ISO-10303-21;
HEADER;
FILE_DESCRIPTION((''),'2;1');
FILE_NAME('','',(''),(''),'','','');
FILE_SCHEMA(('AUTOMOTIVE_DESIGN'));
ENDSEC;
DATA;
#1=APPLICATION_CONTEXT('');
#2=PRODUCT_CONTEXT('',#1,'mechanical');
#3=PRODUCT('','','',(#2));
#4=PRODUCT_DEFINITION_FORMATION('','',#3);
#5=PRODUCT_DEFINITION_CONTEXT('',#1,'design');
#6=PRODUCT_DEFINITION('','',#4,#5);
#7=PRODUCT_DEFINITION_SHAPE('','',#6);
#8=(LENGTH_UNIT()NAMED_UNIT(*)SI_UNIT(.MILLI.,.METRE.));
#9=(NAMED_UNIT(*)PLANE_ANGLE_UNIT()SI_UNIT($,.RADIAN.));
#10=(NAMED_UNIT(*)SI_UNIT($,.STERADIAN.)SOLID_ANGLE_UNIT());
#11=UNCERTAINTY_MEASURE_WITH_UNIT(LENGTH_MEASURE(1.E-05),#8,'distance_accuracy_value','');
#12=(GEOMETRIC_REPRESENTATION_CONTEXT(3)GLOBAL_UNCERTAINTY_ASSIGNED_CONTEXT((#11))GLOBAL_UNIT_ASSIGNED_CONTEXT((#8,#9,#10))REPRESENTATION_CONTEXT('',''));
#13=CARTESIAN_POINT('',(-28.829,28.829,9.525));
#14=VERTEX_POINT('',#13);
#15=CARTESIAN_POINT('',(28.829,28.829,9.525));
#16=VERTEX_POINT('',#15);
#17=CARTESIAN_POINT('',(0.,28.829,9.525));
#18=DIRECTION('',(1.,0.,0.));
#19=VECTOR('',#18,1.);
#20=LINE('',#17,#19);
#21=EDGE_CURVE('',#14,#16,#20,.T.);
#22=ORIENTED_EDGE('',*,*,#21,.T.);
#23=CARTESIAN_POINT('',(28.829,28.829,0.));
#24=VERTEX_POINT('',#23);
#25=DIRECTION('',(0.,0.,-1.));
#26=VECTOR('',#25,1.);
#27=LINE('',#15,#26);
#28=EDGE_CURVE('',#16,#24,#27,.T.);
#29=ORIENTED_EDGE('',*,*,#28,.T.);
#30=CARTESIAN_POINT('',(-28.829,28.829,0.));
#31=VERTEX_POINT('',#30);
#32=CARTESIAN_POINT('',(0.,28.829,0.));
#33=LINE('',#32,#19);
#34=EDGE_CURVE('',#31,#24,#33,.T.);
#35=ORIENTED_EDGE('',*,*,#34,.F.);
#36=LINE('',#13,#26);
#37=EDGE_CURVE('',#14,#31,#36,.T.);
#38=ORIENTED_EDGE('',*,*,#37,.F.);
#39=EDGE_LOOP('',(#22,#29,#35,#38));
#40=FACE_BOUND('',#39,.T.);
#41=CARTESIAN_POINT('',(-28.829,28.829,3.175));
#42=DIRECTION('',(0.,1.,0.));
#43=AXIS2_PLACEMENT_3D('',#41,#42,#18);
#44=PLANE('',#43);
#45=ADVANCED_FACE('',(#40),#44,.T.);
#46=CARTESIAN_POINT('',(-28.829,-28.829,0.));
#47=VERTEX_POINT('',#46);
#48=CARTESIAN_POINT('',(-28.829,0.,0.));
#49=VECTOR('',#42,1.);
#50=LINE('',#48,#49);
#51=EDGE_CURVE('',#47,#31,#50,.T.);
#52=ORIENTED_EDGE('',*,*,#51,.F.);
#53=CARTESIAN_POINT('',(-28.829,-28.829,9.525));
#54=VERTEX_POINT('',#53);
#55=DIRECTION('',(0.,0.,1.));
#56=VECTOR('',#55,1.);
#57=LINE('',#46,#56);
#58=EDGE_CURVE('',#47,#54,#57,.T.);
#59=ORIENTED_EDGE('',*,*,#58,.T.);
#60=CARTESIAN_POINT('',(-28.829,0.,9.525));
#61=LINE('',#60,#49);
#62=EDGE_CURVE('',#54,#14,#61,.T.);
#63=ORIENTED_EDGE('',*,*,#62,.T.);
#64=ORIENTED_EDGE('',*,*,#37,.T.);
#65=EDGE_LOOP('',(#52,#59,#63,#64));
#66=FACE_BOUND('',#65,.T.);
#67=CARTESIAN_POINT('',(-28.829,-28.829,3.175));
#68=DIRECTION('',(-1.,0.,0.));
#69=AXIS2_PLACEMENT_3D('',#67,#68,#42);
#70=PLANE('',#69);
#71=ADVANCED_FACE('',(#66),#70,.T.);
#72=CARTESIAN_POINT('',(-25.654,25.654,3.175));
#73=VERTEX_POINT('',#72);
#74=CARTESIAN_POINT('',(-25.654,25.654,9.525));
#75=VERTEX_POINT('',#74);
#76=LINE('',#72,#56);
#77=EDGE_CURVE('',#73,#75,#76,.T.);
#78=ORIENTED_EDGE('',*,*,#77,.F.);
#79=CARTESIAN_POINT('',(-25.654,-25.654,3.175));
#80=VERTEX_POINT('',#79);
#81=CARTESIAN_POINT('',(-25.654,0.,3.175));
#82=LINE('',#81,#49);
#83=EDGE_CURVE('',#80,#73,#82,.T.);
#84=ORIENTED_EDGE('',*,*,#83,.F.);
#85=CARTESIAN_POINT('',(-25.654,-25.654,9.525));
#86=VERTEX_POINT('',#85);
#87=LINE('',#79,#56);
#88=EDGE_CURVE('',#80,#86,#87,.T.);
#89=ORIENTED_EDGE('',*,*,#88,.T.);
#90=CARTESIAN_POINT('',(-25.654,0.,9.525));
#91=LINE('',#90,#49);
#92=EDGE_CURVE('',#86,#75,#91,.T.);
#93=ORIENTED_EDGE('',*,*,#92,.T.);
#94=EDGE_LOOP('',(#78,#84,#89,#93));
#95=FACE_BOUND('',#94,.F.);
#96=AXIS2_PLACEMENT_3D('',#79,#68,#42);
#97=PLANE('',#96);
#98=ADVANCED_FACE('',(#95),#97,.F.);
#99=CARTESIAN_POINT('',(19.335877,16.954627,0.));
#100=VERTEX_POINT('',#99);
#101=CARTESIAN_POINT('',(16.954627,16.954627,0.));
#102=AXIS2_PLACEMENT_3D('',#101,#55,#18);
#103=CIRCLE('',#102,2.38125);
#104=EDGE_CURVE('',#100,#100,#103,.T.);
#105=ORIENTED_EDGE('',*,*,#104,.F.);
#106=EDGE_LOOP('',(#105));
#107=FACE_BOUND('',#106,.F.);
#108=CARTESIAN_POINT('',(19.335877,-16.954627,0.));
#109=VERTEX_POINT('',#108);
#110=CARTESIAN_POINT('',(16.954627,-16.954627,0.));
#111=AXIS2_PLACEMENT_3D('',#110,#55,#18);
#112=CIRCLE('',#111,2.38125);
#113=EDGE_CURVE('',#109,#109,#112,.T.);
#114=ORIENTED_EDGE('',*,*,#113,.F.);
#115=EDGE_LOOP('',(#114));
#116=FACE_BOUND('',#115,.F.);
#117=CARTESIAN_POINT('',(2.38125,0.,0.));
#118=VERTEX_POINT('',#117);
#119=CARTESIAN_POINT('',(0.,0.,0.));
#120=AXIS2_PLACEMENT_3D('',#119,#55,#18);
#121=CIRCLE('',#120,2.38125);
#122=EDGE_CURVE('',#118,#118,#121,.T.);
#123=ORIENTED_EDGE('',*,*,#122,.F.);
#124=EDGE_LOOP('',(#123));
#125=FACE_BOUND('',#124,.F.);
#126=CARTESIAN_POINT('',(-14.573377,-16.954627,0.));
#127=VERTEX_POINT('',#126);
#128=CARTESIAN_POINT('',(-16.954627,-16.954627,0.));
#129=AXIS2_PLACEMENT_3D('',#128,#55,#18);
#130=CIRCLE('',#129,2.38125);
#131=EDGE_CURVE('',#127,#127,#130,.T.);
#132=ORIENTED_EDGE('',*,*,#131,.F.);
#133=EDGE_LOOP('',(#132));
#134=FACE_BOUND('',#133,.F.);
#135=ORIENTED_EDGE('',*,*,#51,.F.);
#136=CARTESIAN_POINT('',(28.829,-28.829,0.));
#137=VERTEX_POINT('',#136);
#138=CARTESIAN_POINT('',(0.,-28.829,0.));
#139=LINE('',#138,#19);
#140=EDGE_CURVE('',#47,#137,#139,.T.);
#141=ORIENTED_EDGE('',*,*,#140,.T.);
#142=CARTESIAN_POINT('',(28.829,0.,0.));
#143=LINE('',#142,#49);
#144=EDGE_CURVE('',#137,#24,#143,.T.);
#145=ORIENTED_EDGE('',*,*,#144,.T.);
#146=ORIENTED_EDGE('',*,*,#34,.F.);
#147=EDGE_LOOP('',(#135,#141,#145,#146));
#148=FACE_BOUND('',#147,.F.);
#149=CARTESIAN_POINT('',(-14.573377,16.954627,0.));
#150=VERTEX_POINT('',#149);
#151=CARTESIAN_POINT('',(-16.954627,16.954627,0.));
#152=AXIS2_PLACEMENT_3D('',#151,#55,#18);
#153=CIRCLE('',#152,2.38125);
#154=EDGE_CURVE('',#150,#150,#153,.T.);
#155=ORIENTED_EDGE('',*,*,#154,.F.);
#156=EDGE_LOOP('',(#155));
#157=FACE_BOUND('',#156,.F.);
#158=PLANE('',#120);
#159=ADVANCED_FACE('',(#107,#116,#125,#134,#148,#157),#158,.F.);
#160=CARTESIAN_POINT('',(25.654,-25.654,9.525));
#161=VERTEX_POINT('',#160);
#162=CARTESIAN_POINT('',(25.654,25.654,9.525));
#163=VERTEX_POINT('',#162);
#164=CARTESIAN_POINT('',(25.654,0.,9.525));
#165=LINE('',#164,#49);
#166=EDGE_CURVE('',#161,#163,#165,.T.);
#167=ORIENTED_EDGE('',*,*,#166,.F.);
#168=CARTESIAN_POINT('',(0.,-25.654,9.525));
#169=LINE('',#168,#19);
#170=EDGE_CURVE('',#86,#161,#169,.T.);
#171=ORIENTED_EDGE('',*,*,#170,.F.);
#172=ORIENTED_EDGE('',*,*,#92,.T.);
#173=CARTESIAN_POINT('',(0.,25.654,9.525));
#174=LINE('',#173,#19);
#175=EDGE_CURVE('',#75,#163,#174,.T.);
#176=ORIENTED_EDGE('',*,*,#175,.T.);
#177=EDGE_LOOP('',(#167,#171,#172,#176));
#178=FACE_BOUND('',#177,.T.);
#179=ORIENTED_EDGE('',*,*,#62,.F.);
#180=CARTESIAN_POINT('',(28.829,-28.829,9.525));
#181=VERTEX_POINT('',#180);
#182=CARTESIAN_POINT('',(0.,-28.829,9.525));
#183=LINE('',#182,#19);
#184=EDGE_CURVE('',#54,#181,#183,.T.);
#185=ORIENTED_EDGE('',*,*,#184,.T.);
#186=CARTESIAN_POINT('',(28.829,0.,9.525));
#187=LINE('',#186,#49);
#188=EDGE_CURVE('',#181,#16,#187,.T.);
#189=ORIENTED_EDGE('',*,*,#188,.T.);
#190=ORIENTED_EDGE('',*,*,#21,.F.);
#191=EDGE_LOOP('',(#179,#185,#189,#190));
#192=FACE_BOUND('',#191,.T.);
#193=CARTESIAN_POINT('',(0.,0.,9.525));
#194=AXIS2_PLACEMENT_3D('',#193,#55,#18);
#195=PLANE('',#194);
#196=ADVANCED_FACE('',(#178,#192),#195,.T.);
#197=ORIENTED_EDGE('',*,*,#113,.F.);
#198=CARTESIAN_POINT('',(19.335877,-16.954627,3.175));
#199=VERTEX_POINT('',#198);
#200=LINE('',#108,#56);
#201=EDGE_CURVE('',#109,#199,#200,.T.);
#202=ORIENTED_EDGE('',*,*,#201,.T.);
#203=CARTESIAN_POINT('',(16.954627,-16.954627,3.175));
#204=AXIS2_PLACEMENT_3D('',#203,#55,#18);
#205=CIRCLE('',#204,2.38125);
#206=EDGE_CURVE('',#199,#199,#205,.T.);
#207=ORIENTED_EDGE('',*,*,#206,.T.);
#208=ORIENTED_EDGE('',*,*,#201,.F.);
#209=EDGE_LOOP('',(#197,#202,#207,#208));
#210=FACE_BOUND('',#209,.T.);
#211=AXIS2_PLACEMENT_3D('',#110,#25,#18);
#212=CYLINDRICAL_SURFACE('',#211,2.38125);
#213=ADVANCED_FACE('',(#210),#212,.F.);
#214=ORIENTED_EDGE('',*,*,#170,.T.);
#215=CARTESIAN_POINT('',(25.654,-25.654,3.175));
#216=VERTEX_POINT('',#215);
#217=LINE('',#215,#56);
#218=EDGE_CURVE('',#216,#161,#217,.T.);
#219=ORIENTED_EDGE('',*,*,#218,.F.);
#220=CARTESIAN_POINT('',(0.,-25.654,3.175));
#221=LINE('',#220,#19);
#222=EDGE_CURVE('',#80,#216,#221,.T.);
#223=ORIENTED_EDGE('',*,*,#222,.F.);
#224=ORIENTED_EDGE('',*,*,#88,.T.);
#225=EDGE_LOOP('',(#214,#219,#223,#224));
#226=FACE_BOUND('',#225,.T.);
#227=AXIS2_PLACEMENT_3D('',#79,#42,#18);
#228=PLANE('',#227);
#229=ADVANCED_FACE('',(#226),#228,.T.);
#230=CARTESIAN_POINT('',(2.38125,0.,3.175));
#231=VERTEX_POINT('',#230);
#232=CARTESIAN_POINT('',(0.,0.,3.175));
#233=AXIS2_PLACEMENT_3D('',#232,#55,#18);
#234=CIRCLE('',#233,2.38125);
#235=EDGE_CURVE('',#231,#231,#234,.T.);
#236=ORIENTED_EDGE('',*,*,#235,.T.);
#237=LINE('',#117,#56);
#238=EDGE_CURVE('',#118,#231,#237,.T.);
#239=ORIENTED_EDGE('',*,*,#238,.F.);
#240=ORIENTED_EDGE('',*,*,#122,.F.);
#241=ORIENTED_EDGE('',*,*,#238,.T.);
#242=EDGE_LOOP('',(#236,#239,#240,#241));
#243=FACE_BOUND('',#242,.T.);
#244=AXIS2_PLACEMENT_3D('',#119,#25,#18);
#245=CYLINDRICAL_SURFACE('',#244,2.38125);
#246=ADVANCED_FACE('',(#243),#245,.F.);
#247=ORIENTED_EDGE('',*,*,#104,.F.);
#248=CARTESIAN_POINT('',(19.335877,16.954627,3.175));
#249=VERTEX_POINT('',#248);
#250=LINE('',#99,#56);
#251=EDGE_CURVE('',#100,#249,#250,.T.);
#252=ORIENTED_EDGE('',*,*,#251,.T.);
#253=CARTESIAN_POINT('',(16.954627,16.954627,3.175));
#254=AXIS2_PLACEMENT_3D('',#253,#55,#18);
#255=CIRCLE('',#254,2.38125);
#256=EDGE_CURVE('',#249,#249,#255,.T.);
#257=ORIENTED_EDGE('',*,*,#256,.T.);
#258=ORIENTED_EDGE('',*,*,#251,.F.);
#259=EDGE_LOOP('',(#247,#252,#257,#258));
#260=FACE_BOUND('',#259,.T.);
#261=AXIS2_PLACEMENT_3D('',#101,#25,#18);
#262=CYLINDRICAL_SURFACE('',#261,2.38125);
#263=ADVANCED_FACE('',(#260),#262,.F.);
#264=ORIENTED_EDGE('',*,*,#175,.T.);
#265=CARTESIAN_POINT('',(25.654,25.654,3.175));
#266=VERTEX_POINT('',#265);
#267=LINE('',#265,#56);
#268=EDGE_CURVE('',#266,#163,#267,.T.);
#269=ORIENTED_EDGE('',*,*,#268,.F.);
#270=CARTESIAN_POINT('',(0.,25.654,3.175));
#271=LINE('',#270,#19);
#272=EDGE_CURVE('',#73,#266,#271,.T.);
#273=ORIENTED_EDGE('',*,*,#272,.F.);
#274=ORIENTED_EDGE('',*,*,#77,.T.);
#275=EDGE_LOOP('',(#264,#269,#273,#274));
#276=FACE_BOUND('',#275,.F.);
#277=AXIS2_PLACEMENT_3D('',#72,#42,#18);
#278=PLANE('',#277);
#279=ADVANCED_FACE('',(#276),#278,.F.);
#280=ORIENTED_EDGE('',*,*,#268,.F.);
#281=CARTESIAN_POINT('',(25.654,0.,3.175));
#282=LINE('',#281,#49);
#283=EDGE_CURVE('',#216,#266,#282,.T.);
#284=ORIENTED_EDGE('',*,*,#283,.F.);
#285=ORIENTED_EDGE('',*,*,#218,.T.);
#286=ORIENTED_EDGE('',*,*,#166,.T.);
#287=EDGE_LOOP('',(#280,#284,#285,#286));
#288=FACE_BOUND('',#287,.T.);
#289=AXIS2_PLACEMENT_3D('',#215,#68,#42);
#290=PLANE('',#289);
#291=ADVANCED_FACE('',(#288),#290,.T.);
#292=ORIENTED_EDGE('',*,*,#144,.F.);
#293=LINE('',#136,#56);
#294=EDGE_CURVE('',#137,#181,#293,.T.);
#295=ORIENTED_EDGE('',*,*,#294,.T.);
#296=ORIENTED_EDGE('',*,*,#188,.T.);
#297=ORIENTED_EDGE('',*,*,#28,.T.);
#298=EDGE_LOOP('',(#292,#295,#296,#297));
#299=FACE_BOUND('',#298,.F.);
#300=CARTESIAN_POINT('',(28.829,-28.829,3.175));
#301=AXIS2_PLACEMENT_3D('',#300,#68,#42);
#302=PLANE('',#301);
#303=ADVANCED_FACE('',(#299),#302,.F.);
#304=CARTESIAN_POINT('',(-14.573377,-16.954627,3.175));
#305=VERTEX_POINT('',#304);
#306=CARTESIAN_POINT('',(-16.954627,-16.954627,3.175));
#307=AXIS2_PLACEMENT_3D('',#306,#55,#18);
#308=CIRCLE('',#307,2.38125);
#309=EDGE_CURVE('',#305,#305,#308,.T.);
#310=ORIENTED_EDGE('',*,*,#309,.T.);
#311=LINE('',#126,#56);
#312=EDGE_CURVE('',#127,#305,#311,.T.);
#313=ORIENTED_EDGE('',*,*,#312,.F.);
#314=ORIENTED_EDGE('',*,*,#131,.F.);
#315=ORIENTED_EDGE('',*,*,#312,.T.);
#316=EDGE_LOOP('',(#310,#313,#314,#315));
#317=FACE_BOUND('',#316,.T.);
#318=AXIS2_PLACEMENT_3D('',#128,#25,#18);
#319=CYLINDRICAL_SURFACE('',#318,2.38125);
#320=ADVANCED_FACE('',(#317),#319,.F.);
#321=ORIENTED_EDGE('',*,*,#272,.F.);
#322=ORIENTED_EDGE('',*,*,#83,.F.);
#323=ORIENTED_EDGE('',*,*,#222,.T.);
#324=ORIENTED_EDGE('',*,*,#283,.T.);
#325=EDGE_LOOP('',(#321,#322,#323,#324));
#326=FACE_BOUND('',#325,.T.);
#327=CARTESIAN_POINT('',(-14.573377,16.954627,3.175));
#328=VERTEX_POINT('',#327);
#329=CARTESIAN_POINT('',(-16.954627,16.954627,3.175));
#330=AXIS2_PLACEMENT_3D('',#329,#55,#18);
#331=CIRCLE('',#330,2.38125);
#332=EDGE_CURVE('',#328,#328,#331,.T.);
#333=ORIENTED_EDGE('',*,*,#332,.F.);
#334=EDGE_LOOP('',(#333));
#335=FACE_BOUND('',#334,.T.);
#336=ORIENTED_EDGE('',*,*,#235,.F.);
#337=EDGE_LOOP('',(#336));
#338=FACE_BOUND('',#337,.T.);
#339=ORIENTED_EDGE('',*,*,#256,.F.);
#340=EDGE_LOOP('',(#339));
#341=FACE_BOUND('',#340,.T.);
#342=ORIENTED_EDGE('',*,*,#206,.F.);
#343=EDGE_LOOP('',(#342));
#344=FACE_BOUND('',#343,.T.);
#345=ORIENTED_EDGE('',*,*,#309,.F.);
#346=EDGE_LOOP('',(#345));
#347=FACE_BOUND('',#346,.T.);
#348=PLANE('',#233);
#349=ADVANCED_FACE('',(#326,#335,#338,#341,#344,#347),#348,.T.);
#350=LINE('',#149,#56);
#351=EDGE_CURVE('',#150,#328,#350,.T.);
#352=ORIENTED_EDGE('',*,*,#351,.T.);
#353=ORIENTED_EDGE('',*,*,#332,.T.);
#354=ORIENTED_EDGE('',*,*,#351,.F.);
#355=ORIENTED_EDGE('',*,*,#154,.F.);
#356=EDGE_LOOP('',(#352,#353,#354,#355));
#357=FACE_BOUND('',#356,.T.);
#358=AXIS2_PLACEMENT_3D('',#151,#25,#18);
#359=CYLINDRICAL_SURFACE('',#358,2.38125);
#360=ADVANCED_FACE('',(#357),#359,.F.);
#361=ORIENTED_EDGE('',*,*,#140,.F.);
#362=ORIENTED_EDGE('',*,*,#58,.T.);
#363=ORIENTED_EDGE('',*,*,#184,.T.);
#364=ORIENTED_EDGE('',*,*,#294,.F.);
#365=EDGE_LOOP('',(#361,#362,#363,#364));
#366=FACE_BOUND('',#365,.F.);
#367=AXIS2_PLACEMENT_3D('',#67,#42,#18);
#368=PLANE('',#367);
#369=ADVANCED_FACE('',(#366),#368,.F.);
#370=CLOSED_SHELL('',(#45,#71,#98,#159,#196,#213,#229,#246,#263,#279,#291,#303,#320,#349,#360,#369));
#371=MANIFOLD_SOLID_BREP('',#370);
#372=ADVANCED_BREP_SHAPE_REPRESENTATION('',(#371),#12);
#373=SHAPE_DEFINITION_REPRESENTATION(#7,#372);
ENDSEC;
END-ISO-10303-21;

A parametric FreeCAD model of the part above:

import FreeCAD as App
import Part
import Sketcher
Q = App.Units.Quantity


def add_polygon(sketch, points):
    """Adds a closed chain of lines whose ends are joined by coincident constraints."""
    first, n = sketch.GeometryCount, len(points)
    for a, b in zip(points, points[1:] + points[:1]):
        sketch.addGeometry(Part.LineSegment(App.Vector(*a, 0), App.Vector(*b, 0)), False)
    for i in range(n):
        sketch.addConstraint(Sketcher.Constraint("Coincident", first + i, 2, first + (i + 1) % n, 1))

doc = App.newDocument("Part")
body = doc.addObject("PartDesign::Body", "Body")

# Sketch on XY plane
sketch1 = doc.addObject("Sketcher::SketchObject", "Sketch")
body.addObject(sketch1)
sketch1.AttachmentSupport = (doc.XY_Plane, [""])
sketch1.MapMode = "FlatFace"
add_polygon(sketch1, [(-28.829, 28.829), (-28.829, -28.829), (28.829, -28.829), (28.829, 28.829)])  # lines 0-3
sketch1.addGeometry(Part.Circle(App.Vector(-16.954627, -16.954627, 0), App.Vector(0, 0, 1), 2.38125), False)  # 4
sketch1.addGeometry(Part.Circle(App.Vector(16.954627, -16.954627, 0), App.Vector(0, 0, 1), 2.38125), False)  # 5
sketch1.addGeometry(Part.Circle(App.Vector(0, 0, 0), App.Vector(0, 0, 1), 2.38125), False)  # 6
sketch1.addGeometry(Part.Circle(App.Vector(-16.954627, 16.954627, 0), App.Vector(0, 0, 1), 2.38125), False)  # 7
sketch1.addGeometry(Part.Circle(App.Vector(16.954627, 16.954627, 0), App.Vector(0, 0, 1), 2.38125), False)  # 8
sketch1.addConstraint(Sketcher.Constraint("Vertical", 0))
sketch1.addConstraint(Sketcher.Constraint("Horizontal", 1))
sketch1.addConstraint(Sketcher.Constraint("Vertical", 2))
sketch1.addConstraint(Sketcher.Constraint("Horizontal", 3))
sketch1.addConstraint(Sketcher.Constraint("Coincident", 6, 3, -1, 1))
sketch1.addConstraint(Sketcher.Constraint("Equal", 4, 5))
sketch1.addConstraint(Sketcher.Constraint("Equal", 5, 6))
sketch1.addConstraint(Sketcher.Constraint("Equal", 6, 7))
sketch1.addConstraint(Sketcher.Constraint("Equal", 7, 8))
sketch1.addConstraint(Sketcher.Constraint("Symmetric", 5, 3, 7, 3, -1, 1))
sketch1.addConstraint(Sketcher.Constraint("Symmetric", 4, 3, 8, 3, -1, 1))
sketch1.addConstraint(Sketcher.Constraint("Symmetric", 0, 2, 2, 2, -1, 1))
sketch1.addConstraint(Sketcher.Constraint("Symmetric", 4, 3, 5, 3, -2))
sketch1.addConstraint(Sketcher.Constraint("Equal", 3, 0))
sketch1.addConstraint(Sketcher.Constraint("Diameter", 4, Q("0.1875 in")))
sketch1.addConstraint(Sketcher.Constraint("DistanceX", 1, 1, 1, 2, Q("2.27 in")))
sketch1.addConstraint(Sketcher.Constraint("DistanceX", 4, 3, -1, 1, Q("16.954627 mm")))
sketch1.addConstraint(Sketcher.Constraint("DistanceY", 4, 3, -1, 1, Q("16.954627 mm")))
pad1 = doc.addObject("PartDesign::Pad", "Pad")
body.addObject(pad1)
pad1.Profile = sketch1
pad1.Length = Q("0.125 in")

# Sketch on XY plane
sketch2 = doc.addObject("Sketcher::SketchObject", "Sketch001")
body.addObject(sketch2)
sketch2.AttachmentSupport = (doc.XY_Plane, [""])
sketch2.MapMode = "FlatFace"
sketch2.AttachmentOffset = App.Placement(App.Vector(0, 0, 0.125 * 25.4), App.Rotation())
add_polygon(sketch2, [(-28.829, 28.829), (-28.829, -28.829), (28.829, -28.829), (28.829, 28.829)])  # lines 0-3
add_polygon(sketch2, [(25.654, -25.654), (-25.654, -25.654), (-25.654, 25.654), (25.654, 25.654)])  # lines 4-7
sketch2.addConstraint(Sketcher.Constraint("Vertical", 0))
sketch2.addConstraint(Sketcher.Constraint("Horizontal", 1))
sketch2.addConstraint(Sketcher.Constraint("Vertical", 2))
sketch2.addConstraint(Sketcher.Constraint("Horizontal", 3))
sketch2.addConstraint(Sketcher.Constraint("Horizontal", 4))
sketch2.addConstraint(Sketcher.Constraint("Vertical", 5))
sketch2.addConstraint(Sketcher.Constraint("Horizontal", 6))
sketch2.addConstraint(Sketcher.Constraint("Vertical", 7))
sketch2.addConstraint(Sketcher.Constraint("Symmetric", 0, 2, 2, 2, -1, 1))
sketch2.addConstraint(Sketcher.Constraint("Symmetric", 4, 2, 6, 2, -1, 1))
sketch2.addConstraint(Sketcher.Constraint("Equal", 3, 0))
sketch2.addConstraint(Sketcher.Constraint("Equal", 6, 5))
sketch2.addConstraint(Sketcher.Constraint("DistanceX", 1, 1, 1, 2, Q("2.27 in")))
sketch2.addConstraint(Sketcher.Constraint("DistanceX", 4, 2, 4, 1, Q("2.02 in")))
pad2 = doc.addObject("PartDesign::Pad", "Pad001")
body.addObject(pad2)
pad2.Profile = sketch2
pad2.Length = Q("0.25 in")

doc.recompute()
